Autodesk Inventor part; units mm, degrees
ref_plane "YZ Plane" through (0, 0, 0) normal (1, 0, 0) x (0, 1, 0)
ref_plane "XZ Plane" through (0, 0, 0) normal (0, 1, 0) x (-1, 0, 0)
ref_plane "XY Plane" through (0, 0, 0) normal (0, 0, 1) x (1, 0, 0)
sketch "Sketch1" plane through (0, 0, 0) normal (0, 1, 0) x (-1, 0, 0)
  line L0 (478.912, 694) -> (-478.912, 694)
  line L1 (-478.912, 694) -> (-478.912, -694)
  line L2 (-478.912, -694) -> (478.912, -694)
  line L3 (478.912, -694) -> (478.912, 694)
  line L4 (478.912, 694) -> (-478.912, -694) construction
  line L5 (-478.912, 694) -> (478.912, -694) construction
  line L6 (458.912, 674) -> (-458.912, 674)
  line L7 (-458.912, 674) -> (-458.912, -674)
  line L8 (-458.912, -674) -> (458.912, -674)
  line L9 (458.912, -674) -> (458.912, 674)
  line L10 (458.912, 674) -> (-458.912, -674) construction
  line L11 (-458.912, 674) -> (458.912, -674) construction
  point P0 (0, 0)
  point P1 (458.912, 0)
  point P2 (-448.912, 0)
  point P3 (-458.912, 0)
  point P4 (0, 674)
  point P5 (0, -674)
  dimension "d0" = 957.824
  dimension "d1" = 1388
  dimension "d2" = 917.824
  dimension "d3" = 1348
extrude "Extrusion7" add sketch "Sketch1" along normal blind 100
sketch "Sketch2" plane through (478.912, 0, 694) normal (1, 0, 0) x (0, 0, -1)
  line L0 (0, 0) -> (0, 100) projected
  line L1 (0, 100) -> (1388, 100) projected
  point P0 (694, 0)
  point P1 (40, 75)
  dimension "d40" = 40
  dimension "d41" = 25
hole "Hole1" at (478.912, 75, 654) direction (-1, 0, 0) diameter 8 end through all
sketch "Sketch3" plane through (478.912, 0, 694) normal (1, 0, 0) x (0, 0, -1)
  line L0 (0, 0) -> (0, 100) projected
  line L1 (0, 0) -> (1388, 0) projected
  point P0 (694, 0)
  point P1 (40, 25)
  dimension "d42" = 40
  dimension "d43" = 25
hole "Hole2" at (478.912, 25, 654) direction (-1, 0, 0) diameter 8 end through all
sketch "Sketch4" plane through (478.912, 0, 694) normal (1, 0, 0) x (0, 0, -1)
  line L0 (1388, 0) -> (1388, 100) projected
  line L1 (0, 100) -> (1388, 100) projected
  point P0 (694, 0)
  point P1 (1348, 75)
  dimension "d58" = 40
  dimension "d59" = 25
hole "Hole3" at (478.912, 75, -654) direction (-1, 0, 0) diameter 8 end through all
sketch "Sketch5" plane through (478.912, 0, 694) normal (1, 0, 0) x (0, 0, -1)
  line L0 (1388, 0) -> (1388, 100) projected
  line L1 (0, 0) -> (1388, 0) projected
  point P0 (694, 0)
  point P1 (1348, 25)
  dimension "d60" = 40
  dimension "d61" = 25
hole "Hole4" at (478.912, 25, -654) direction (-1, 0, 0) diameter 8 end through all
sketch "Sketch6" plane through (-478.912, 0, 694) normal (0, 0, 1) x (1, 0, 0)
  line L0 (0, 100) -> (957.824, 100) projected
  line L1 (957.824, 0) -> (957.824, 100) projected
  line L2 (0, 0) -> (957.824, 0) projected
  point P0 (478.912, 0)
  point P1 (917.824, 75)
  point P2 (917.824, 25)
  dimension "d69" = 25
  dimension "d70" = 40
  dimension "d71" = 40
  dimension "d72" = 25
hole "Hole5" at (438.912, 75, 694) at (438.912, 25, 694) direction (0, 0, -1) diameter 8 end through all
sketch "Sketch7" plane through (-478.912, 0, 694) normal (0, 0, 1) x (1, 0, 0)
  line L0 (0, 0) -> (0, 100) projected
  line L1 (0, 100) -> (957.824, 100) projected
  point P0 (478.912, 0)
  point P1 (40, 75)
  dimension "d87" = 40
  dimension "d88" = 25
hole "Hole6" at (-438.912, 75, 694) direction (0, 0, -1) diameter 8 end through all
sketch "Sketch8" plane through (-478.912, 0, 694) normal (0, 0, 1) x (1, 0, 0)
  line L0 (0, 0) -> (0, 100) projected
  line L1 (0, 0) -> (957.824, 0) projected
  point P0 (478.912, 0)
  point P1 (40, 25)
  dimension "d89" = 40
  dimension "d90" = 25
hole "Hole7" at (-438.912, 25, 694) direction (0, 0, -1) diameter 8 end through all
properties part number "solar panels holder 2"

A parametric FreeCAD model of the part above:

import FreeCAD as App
import Part
import Sketcher
Q = App.Units.Quantity

doc = App.newDocument("Part")
body = doc.addObject("PartDesign::Body", "Body")

# Sketch on XZ plane
sketch1 = body.newObject("Sketcher::SketchObject", "Sketch")
sketch1.AttachmentSupport = (doc.getObject("XZ_Plane"), [""])
sketch1.MapMode = "FlatFace"
sketch1.addGeometry(Part.LineSegment(App.Vector(-479, -694, 0), App.Vector(-479, 694, 0)), False)
sketch1.addGeometry(Part.LineSegment(App.Vector(-479, 694, 0), App.Vector(479, 694, 0)), False)
sketch1.addGeometry(Part.LineSegment(App.Vector(479, 694, 0), App.Vector(479, -694, 0)), False)
sketch1.addGeometry(Part.LineSegment(App.Vector(479, -694, 0), App.Vector(-479, -694, 0)), False)
sketch1.addGeometry(Part.LineSegment(App.Vector(459, 674, 0), App.Vector(-459, 674, 0)), False)
sketch1.addGeometry(Part.LineSegment(App.Vector(-459, 674, 0), App.Vector(-459, -674, 0)), False)
sketch1.addGeometry(Part.LineSegment(App.Vector(-459, -674, 0), App.Vector(459, -674, 0)), False)
sketch1.addGeometry(Part.LineSegment(App.Vector(459, -674, 0), App.Vector(459, 674, 0)), False)
sketch1.addConstraint(Sketcher.Constraint("Coincident", 0, 2, 1, 1))
sketch1.addConstraint(Sketcher.Constraint("Coincident", 1, 2, 2, 1))
sketch1.addConstraint(Sketcher.Constraint("Coincident", 2, 2, 3, 1))
sketch1.addConstraint(Sketcher.Constraint("Coincident", 3, 2, 0, 1))
sketch1.addConstraint(Sketcher.Constraint("Coincident", 4, 2, 5, 1))
sketch1.addConstraint(Sketcher.Constraint("Coincident", 5, 2, 6, 1))
sketch1.addConstraint(Sketcher.Constraint("Coincident", 6, 2, 7, 1))
sketch1.addConstraint(Sketcher.Constraint("Coincident", 7, 2, 4, 1))
sketch1.addConstraint(Sketcher.Constraint("Vertical", 0))
sketch1.addConstraint(Sketcher.Constraint("Horizontal", 1))
sketch1.addConstraint(Sketcher.Constraint("Vertical", 2))
sketch1.addConstraint(Sketcher.Constraint("Horizontal", 3))
sketch1.addConstraint(Sketcher.Constraint("Horizontal", 4))
sketch1.addConstraint(Sketcher.Constraint("Vertical", 5))
sketch1.addConstraint(Sketcher.Constraint("Horizontal", 6))
sketch1.addConstraint(Sketcher.Constraint("Vertical", 7))
sketch1.addConstraint(Sketcher.Constraint("Symmetric", 0, 2, 2, 2, -1, 1))
sketch1.addConstraint(Sketcher.Constraint("Symmetric", 4, 2, 6, 2, -1, 1))
sketch1.addConstraint(Sketcher.Constraint("DistanceY", 0, 1, 0, 2, Q("1388 mm")))
sketch1.addConstraint(Sketcher.Constraint("DistanceY", 5, 2, 5, 1, Q("1348 mm")))
sketch1.addConstraint(Sketcher.Constraint("DistanceX", 1, 1, 1, 2, Q("957.824 mm")))
sketch1.addConstraint(Sketcher.Constraint("DistanceX", 4, 2, 4, 1, Q("917.824 mm")))
pad1 = body.newObject("PartDesign::Pad", "Pad")
pad1.Profile = sketch1
pad1.Length = 100
pad1.Reversed = True

# Sketch on YZ plane
sketch2 = body.newObject("Sketcher::SketchObject", "Sketch001")
sketch2.AttachmentSupport = (doc.getObject("YZ_Plane"), [""])
sketch2.MapMode = "FlatFace"
sketch2.AttachmentOffset = App.Placement(App.Vector(0, 0, 478.912), App.Rotation())
sketch2.addGeometry(Part.Circle(App.Vector(75, 654, 0), App.Vector(0, 0, 1), 4), False)
sketch2.addConstraint(Sketcher.Constraint("Diameter", 0, Q("8 mm")))
sketch2.addConstraint(Sketcher.Constraint("DistanceX", -1, 1, 0, 3, Q("75 mm")))
sketch2.addConstraint(Sketcher.Constraint("DistanceY", -1, 1, 0, 3, Q("654 mm")))
doc.recompute()
hole = body.newObject("PartDesign::Hole", "Hole")
hole.Profile = sketch2
hole.ThreadType = "None"
hole.Diameter = 8
hole.DepthType = "ThroughAll"

# Sketch on YZ plane
sketch3 = body.newObject("Sketcher::SketchObject", "Sketch002")
sketch3.AttachmentSupport = (doc.getObject("YZ_Plane"), [""])
sketch3.MapMode = "FlatFace"
sketch3.AttachmentOffset = App.Placement(App.Vector(0, 0, 478.912), App.Rotation())
sketch3.addGeometry(Part.Circle(App.Vector(25, 654, 0), App.Vector(0, 0, 1), 4), False)
sketch3.addConstraint(Sketcher.Constraint("Diameter", 0, Q("8 mm")))
sketch3.addConstraint(Sketcher.Constraint("DistanceX", -1, 1, 0, 3, Q("25 mm")))
sketch3.addConstraint(Sketcher.Constraint("DistanceY", -1, 1, 0, 3, Q("654 mm")))
doc.recompute()
hole2 = body.newObject("PartDesign::Hole", "Hole001")
hole2.Profile = sketch3
hole2.ThreadType = "None"
hole2.Diameter = 8
hole2.DepthType = "ThroughAll"

# Sketch on YZ plane
sketch4 = body.newObject("Sketcher::SketchObject", "Sketch003")
sketch4.AttachmentSupport = (doc.getObject("YZ_Plane"), [""])
sketch4.MapMode = "FlatFace"
sketch4.AttachmentOffset = App.Placement(App.Vector(0, 0, 478.912), App.Rotation())
sketch4.addGeometry(Part.Circle(App.Vector(75, -654, 0), App.Vector(0, 0, 1), 4), False)
sketch4.addConstraint(Sketcher.Constraint("Diameter", 0, Q("8 mm")))
sketch4.addConstraint(Sketcher.Constraint("DistanceX", -1, 1, 0, 3, Q("75 mm")))
sketch4.addConstraint(Sketcher.Constraint("DistanceY", 0, 3, -1, 1, Q("654 mm")))
doc.recompute()
hole3 = body.newObject("PartDesign::Hole", "Hole002")
hole3.Profile = sketch4
hole3.ThreadType = "None"
hole3.Diameter = 8
hole3.DepthType = "ThroughAll"

# Sketch on YZ plane
sketch5 = body.newObject("Sketcher::SketchObject", "Sketch004")
sketch5.AttachmentSupport = (doc.getObject("YZ_Plane"), [""])
sketch5.MapMode = "FlatFace"
sketch5.AttachmentOffset = App.Placement(App.Vector(0, 0, 478.912), App.Rotation())
sketch5.addGeometry(Part.Circle(App.Vector(25, -654, 0), App.Vector(0, 0, 1), 4), False)
sketch5.addConstraint(Sketcher.Constraint("Diameter", 0, Q("8 mm")))
sketch5.addConstraint(Sketcher.Constraint("DistanceX", -1, 1, 0, 3, Q("25 mm")))
sketch5.addConstraint(Sketcher.Constraint("DistanceY", 0, 3, -1, 1, Q("654 mm")))
doc.recompute()
hole4 = body.newObject("PartDesign::Hole", "Hole003")
hole4.Profile = sketch5
hole4.ThreadType = "None"
hole4.Diameter = 8
hole4.DepthType = "ThroughAll"

# Sketch on XY plane
sketch6 = body.newObject("Sketcher::SketchObject", "Sketch005")
sketch6.AttachmentSupport = (doc.getObject("XY_Plane"), [""])
sketch6.MapMode = "FlatFace"
sketch6.AttachmentOffset = App.Placement(App.Vector(0, 0, 694), App.Rotation())
sketch6.addGeometry(Part.Circle(App.Vector(438.9, 75, 0), App.Vector(0, 0, 1), 4), False)
sketch6.addGeometry(Part.Circle(App.Vector(438.9, 25, 0), App.Vector(0, 0, 1), 4), False)
sketch6.addConstraint(Sketcher.Constraint("Equal", 0, 1))
sketch6.addConstraint(Sketcher.Constraint("Vertical", 0, 3, 1, 3))
sketch6.addConstraint(Sketcher.Constraint("Diameter", 0, Q("8 mm")))
sketch6.addConstraint(Sketcher.Constraint("DistanceY", -1, 1, 0, 3, Q("75 mm")))
sketch6.addConstraint(Sketcher.Constraint("DistanceY", -1, 1, 1, 3, Q("25 mm")))
sketch6.addConstraint(Sketcher.Constraint("DistanceX", -1, 1, 0, 3, Q("438.912 mm")))
doc.recompute()
hole5 = body.newObject("PartDesign::Hole", "Hole004")
hole5.Profile = sketch6
hole5.ThreadType = "None"
hole5.Diameter = 8
hole5.DepthType = "ThroughAll"

# Sketch on XY plane
sketch7 = body.newObject("Sketcher::SketchObject", "Sketch006")
sketch7.AttachmentSupport = (doc.getObject("XY_Plane"), [""])
sketch7.MapMode = "FlatFace"
sketch7.AttachmentOffset = App.Placement(App.Vector(0, 0, 694), App.Rotation())
sketch7.addGeometry(Part.Circle(App.Vector(-438.9, 75, 0), App.Vector(0, 0, 1), 4), False)
sketch7.addConstraint(Sketcher.Constraint("Diameter", 0, Q("8 mm")))
sketch7.addConstraint(Sketcher.Constraint("DistanceY", -1, 1, 0, 3, Q("75 mm")))
sketch7.addConstraint(Sketcher.Constraint("DistanceX", 0, 3, -1, 1, Q("438.912 mm")))
doc.recompute()
hole6 = body.newObject("PartDesign::Hole", "Hole005")
hole6.Profile = sketch7
hole6.ThreadType = "None"
hole6.Diameter = 8
hole6.DepthType = "ThroughAll"

# Sketch on XY plane
sketch8 = body.newObject("Sketcher::SketchObject", "Sketch007")
sketch8.AttachmentSupport = (doc.getObject("XY_Plane"), [""])
sketch8.MapMode = "FlatFace"
sketch8.AttachmentOffset = App.Placement(App.Vector(0, 0, 694), App.Rotation())
sketch8.addGeometry(Part.Circle(App.Vector(-438.9, 25, 0), App.Vector(0, 0, 1), 4), False)
sketch8.addConstraint(Sketcher.Constraint("Diameter", 0, Q("8 mm")))
sketch8.addConstraint(Sketcher.Constraint("DistanceY", -1, 1, 0, 3, Q("25 mm")))
sketch8.addConstraint(Sketcher.Constraint("DistanceX", 0, 3, -1, 1, Q("438.912 mm")))
doc.recompute()
hole7 = body.newObject("PartDesign::Hole", "Hole006")
hole7.Profile = sketch8
hole7.ThreadType = "None"
hole7.Diameter = 8
hole7.DepthType = "ThroughAll"

doc.recompute()
